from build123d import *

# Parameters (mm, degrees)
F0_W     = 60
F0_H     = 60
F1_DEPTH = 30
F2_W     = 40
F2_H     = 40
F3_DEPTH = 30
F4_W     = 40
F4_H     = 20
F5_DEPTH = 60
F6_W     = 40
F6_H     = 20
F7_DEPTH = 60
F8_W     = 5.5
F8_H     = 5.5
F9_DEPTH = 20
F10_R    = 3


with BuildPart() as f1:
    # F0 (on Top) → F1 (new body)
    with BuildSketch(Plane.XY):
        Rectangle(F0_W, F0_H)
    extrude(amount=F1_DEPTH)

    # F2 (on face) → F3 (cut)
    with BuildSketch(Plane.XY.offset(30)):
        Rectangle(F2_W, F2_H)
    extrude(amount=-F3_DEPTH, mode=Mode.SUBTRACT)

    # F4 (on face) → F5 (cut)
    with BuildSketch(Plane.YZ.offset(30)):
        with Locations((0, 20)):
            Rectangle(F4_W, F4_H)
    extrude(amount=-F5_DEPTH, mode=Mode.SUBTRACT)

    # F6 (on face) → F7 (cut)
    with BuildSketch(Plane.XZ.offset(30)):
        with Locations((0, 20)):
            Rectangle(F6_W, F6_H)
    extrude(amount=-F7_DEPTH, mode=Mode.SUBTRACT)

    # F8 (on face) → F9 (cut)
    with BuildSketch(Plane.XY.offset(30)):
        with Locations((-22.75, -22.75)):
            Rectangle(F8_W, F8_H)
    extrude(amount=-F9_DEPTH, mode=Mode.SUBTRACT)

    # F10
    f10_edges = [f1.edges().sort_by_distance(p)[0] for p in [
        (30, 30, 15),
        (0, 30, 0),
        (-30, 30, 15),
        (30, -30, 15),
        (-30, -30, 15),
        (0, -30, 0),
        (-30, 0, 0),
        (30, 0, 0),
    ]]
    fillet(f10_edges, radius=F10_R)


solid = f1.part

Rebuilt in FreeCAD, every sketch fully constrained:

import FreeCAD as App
import Part
import Sketcher
from FreeCAD import Vector
Q = App.Units.Quantity


def edges_at(feature, points):
    """Names of the edges that pass closest to the given points."""
    edges = feature.Shape.Edges
    near = lambda p: min(range(len(edges)), key=lambda i: edges[i].distToShape(Part.Vertex(*p))[0])
    return sorted({f"Edge{near(p) + 1}" for p in points})

doc = App.newDocument("Part")
params = doc.addObject("Spreadsheet::Sheet", "Params")
for row, (alias, value) in enumerate([
    ("sketch1_width", "60 mm"),
    ("pad1_length", "30 mm"),
    ("sketch2_width", "40 mm"),
    ("pocket1_length", "30 mm"),
    ("sketch3_width", "40 mm"),
    ("sketch3_height", "20 mm"),
    ("pocket2_length", "60 mm"),
    ("sketch4_width", "40 mm"),
    ("sketch4_height", "20 mm"),
    ("pocket3_length", "60 mm"),
    ("sketch5_width", "5.5 mm"),
    ("pocket4_length", "20 mm"),
    ("fillet_radius", "3 mm"),
], start=1):
    params.set(f"A{row}", alias)
    params.set(f"B{row}", "=" + value)
    params.setAlias(f"B{row}", alias)

body = doc.addObject("PartDesign::Body", "Body")

# Sketch on XY plane
sketch1 = body.newObject("Sketcher::SketchObject", "Sketch")
sketch1.AttachmentSupport = (doc.getObject("XY_Plane"), [""])
sketch1.MapMode = "FlatFace"
sketch1.addGeometry([
    Part.LineSegment(Vector(-30, 30, 0), Vector(-30, -30, 0)),
    Part.LineSegment(Vector(-30, -30, 0), Vector(30, -30, 0)),
    Part.LineSegment(Vector(30, -30, 0), Vector(30, 30, 0)),
    Part.LineSegment(Vector(30, 30, 0), Vector(-30, 30, 0)),
], False)
sketch1.addConstraint([
    Sketcher.Constraint("Coincident", 0, 2, 1, 1),
    Sketcher.Constraint("Coincident", 1, 2, 2, 1),
    Sketcher.Constraint("Coincident", 2, 2, 3, 1),
    Sketcher.Constraint("Coincident", 3, 2, 0, 1),
    Sketcher.Constraint("Vertical", 0),
    Sketcher.Constraint("Horizontal", 1),
    Sketcher.Constraint("Vertical", 2),
    Sketcher.Constraint("Horizontal", 3),
    Sketcher.Constraint("Symmetric", 0, 2, 2, 2, -1, 1),
    Sketcher.Constraint("Equal", 3, 0),
    Sketcher.Constraint("DistanceX", 1, 1, 1, 2, Q("60 mm")),
])
sketch1.setExpression("Constraints[10]", "Params.sketch1_width")
pad1 = body.newObject("PartDesign::Pad", "Pad")
pad1.Profile = sketch1
pad1.setExpression("Length", "Params.pad1_length")

# Sketch on XY plane
sketch2 = body.newObject("Sketcher::SketchObject", "Sketch001")
sketch2.AttachmentSupport = (doc.getObject("XY_Plane"), [""])
sketch2.MapMode = "FlatFace"
sketch2.AttachmentOffset = App.Placement(Vector(0, 0, 30), App.Rotation())
sketch2.addGeometry([
    Part.LineSegment(Vector(-20, 20, 0), Vector(-20, -20, 0)),
    Part.LineSegment(Vector(-20, -20, 0), Vector(20, -20, 0)),
    Part.LineSegment(Vector(20, -20, 0), Vector(20, 20, 0)),
    Part.LineSegment(Vector(20, 20, 0), Vector(-20, 20, 0)),
], False)
sketch2.addConstraint([
    Sketcher.Constraint("Coincident", 0, 2, 1, 1),
    Sketcher.Constraint("Coincident", 1, 2, 2, 1),
    Sketcher.Constraint("Coincident", 2, 2, 3, 1),
    Sketcher.Constraint("Coincident", 3, 2, 0, 1),
    Sketcher.Constraint("Vertical", 0),
    Sketcher.Constraint("Horizontal", 1),
    Sketcher.Constraint("Vertical", 2),
    Sketcher.Constraint("Horizontal", 3),
    Sketcher.Constraint("Symmetric", 0, 2, 2, 2, -1, 1),
    Sketcher.Constraint("Equal", 3, 0),
    Sketcher.Constraint("DistanceX", 1, 1, 1, 2, Q("40 mm")),
])
sketch2.setExpression("Constraints[10]", "Params.sketch2_width")
pocket1 = body.newObject("PartDesign::Pocket", "Pocket")
pocket1.Profile = sketch2
pocket1.setExpression("Length", "Params.pocket1_length")

# Sketch on YZ plane
sketch3 = body.newObject("Sketcher::SketchObject", "Sketch002")
sketch3.AttachmentSupport = (doc.getObject("YZ_Plane"), [""])
sketch3.MapMode = "FlatFace"
sketch3.AttachmentOffset = App.Placement(Vector(0, 0, 30), App.Rotation())
sketch3.addGeometry([
    Part.LineSegment(Vector(-20, 30, 0), Vector(-20, 10, 0)),
    Part.LineSegment(Vector(-20, 10, 0), Vector(20, 10, 0)),
    Part.LineSegment(Vector(20, 10, 0), Vector(20, 30, 0)),
    Part.LineSegment(Vector(20, 30, 0), Vector(-20, 30, 0)),
], False)
sketch3.addConstraint([
    Sketcher.Constraint("Coincident", 0, 2, 1, 1),
    Sketcher.Constraint("Coincident", 1, 2, 2, 1),
    Sketcher.Constraint("Coincident", 2, 2, 3, 1),
    Sketcher.Constraint("Coincident", 3, 2, 0, 1),
    Sketcher.Constraint("Vertical", 0),
    Sketcher.Constraint("Horizontal", 1),
    Sketcher.Constraint("Vertical", 2),
    Sketcher.Constraint("Horizontal", 3),
    Sketcher.Constraint("DistanceX", 1, 1, 1, 2, Q("40 mm")),
    Sketcher.Constraint("DistanceY", 0, 2, 0, 1, Q("20 mm")),
    Sketcher.Constraint("DistanceX", 0, 2, -1, 1, Q("20 mm")),
    Sketcher.Constraint("DistanceY", -1, 1, 0, 2, Q("10 mm")),
])
sketch3.setExpression("Constraints[8]", "Params.sketch3_width")
sketch3.setExpression("Constraints[9]", "Params.sketch3_height")
pocket2 = body.newObject("PartDesign::Pocket", "Pocket001")
pocket2.Profile = sketch3
pocket2.setExpression("Length", "Params.pocket2_length")

# Sketch on XZ plane
sketch4 = body.newObject("Sketcher::SketchObject", "Sketch003")
sketch4.AttachmentSupport = (doc.getObject("XZ_Plane"), [""])
sketch4.MapMode = "FlatFace"
sketch4.AttachmentOffset = App.Placement(Vector(0, 0, 30), App.Rotation())
sketch4.addGeometry([
    Part.LineSegment(Vector(-20, 30, 0), Vector(-20, 10, 0)),
    Part.LineSegment(Vector(-20, 10, 0), Vector(20, 10, 0)),
    Part.LineSegment(Vector(20, 10, 0), Vector(20, 30, 0)),
    Part.LineSegment(Vector(20, 30, 0), Vector(-20, 30, 0)),
], False)
sketch4.addConstraint([
    Sketcher.Constraint("Coincident", 0, 2, 1, 1),
    Sketcher.Constraint("Coincident", 1, 2, 2, 1),
    Sketcher.Constraint("Coincident", 2, 2, 3, 1),
    Sketcher.Constraint("Coincident", 3, 2, 0, 1),
    Sketcher.Constraint("Vertical", 0),
    Sketcher.Constraint("Horizontal", 1),
    Sketcher.Constraint("Vertical", 2),
    Sketcher.Constraint("Horizontal", 3),
    Sketcher.Constraint("DistanceX", 1, 1, 1, 2, Q("40 mm")),
    Sketcher.Constraint("DistanceY", 0, 2, 0, 1, Q("20 mm")),
    Sketcher.Constraint("DistanceX", 0, 2, -1, 1, Q("20 mm")),
    Sketcher.Constraint("DistanceY", -1, 1, 0, 2, Q("10 mm")),
])
sketch4.setExpression("Constraints[8]", "Params.sketch4_width")
sketch4.setExpression("Constraints[9]", "Params.sketch4_height")
pocket3 = body.newObject("PartDesign::Pocket", "Pocket002")
pocket3.Profile = sketch4
pocket3.setExpression("Length", "Params.pocket3_length")

# Sketch on XY plane
sketch5 = body.newObject("Sketcher::SketchObject", "Sketch004")
sketch5.AttachmentSupport = (doc.getObject("XY_Plane"), [""])
sketch5.MapMode = "FlatFace"
sketch5.AttachmentOffset = App.Placement(Vector(0, 0, 30), App.Rotation())
sketch5.addGeometry([
    Part.LineSegment(Vector(-26, -20, 0), Vector(-26, -26, 0)),
    Part.LineSegment(Vector(-26, -26, 0), Vector(-20, -26, 0)),
    Part.LineSegment(Vector(-20, -26, 0), Vector(-20, -20, 0)),
    Part.LineSegment(Vector(-20, -20, 0), Vector(-26, -20, 0)),
], False)
sketch5.addConstraint([
    Sketcher.Constraint("Coincident", 0, 2, 1, 1),
    Sketcher.Constraint("Coincident", 1, 2, 2, 1),
    Sketcher.Constraint("Coincident", 2, 2, 3, 1),
    Sketcher.Constraint("Coincident", 3, 2, 0, 1),
    Sketcher.Constraint("Vertical", 0),
    Sketcher.Constraint("Horizontal", 1),
    Sketcher.Constraint("Vertical", 2),
    Sketcher.Constraint("Horizontal", 3),
    Sketcher.Constraint("Equal", 3, 0),
    Sketcher.Constraint("DistanceX", 1, 1, 1, 2, Q("5.5 mm")),
    Sketcher.Constraint("DistanceX", 1, 2, -1, 1, Q("20 mm")),
    Sketcher.Constraint("DistanceY", 2, 2, -1, 1, Q("20 mm")),
])
sketch5.setExpression("Constraints[9]", "Params.sketch5_width")
pocket4 = body.newObject("PartDesign::Pocket", "Pocket003")
pocket4.Profile = sketch5
pocket4.setExpression("Length", "Params.pocket4_length")
doc.recompute()

fillet = body.newObject("PartDesign::Fillet", "Fillet")
fillet.Base = (pocket4, edges_at(pocket4, [
    (30, 30, 15),
    (0, 30, 0),
    (-30, 30, 15),
    (30, -30, 15),
    (-30, -30, 15),
    (0, -30, 0),
    (-30, 0, 0),
    (30, 0, 0),
]))
fillet.setExpression("Radius", "Params.fillet_radius")

doc.recompute()
